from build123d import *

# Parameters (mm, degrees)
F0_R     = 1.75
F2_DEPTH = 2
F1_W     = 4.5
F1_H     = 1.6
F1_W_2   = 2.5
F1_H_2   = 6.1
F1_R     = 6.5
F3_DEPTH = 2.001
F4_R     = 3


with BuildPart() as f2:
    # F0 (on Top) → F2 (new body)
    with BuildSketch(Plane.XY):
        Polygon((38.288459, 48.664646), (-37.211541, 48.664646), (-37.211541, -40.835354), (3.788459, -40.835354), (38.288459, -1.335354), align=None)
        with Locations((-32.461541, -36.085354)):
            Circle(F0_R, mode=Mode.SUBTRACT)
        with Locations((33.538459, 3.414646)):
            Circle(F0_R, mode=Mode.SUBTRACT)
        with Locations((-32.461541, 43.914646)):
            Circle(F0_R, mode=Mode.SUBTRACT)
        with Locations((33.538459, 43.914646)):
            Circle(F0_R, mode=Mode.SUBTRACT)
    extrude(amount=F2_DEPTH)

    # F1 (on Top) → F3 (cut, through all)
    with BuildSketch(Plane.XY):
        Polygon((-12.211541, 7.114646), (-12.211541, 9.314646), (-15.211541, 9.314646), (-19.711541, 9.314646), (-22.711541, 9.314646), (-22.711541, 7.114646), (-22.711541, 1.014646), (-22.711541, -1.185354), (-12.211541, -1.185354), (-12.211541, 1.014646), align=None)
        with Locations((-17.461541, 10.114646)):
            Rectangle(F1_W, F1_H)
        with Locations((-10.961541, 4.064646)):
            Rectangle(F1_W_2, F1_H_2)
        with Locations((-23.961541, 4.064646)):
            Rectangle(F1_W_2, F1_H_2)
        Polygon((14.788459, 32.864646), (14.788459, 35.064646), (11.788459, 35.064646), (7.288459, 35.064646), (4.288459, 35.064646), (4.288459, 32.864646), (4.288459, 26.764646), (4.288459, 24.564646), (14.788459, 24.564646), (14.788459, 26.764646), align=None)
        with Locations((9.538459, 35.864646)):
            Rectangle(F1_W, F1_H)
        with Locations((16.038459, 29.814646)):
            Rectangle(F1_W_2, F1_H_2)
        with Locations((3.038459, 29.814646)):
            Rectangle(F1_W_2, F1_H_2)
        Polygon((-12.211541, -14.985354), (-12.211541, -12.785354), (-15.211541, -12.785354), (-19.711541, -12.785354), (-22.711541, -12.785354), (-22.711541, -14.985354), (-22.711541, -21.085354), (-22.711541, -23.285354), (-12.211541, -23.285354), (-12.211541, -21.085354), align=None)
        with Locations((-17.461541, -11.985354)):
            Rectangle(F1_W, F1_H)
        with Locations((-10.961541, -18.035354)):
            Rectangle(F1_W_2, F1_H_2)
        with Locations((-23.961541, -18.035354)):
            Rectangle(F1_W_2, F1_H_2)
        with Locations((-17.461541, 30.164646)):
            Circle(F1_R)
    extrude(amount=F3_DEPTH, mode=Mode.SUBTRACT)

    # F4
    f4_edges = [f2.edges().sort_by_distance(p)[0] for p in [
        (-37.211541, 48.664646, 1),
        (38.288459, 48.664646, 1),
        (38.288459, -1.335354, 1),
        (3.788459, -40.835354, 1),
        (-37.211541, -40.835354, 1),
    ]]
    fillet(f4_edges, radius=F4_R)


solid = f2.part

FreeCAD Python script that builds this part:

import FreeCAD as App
import Part
import Sketcher

V = App.Vector
Q = App.Units.Quantity


def edges_at(feature, points):
    """Names of the edges that pass closest to the given points."""
    edges = feature.Shape.Edges
    near = lambda p: min(range(len(edges)), key=lambda i: edges[i].distToShape(Part.Vertex(*p))[0])
    return sorted({f"Edge{near(p) + 1}" for p in points})


def add_polygon(sketch, points):
    """Adds a closed chain of lines whose ends are joined by coincident constraints."""
    first, n = sketch.GeometryCount, len(points)
    for a, b in zip(points, points[1:] + points[:1]):
        sketch.addGeometry(Part.LineSegment(App.Vector(*a, 0), App.Vector(*b, 0)), False)
    for i in range(n):
        sketch.addConstraint(Sketcher.Constraint("Coincident", first + i, 2, first + (i + 1) % n, 1))

doc = App.newDocument("Part")
body = doc.addObject("PartDesign::Body", "Body")

# Sketch on XY plane
sketch1 = body.newObject("Sketcher::SketchObject", "Sketch")
sketch1.AttachmentSupport = (doc.getObject("XY_Plane"), [""])
sketch1.MapMode = "FlatFace"
add_polygon(sketch1, [(38.3, 48.7), (-37.2, 48.7), (-37.2, -40.8), (3.8, -40.8), (38.3, -1.3)])  # lines 0-4
sketch1.addGeometry(Part.Circle(V(-32.5, -36.1, 0), V(0, 0, 1), 1.8), False)  # 5
sketch1.addGeometry(Part.Circle(V(33.5, 3.4, 0), V(0, 0, 1), 1.8), False)  # 6
sketch1.addGeometry(Part.Circle(V(-32.5, 43.9, 0), V(0, 0, 1), 1.8), False)  # 7
sketch1.addGeometry(Part.Circle(V(33.5, 43.9, 0), V(0, 0, 1), 1.8), False)  # 8
sketch1.addConstraint([
    Sketcher.Constraint("Horizontal", 0),
    Sketcher.Constraint("Vertical", 1),
    Sketcher.Constraint("Horizontal", 2),
    Sketcher.Constraint("Vertical", 4),
    Sketcher.Constraint("Equal", 5, 6),
    Sketcher.Constraint("Equal", 6, 7),
    Sketcher.Constraint("Equal", 7, 8),
    Sketcher.Constraint("Horizontal", 7, 3, 8, 3),
    Sketcher.Constraint("Vertical", 5, 3, 7, 3),
    Sketcher.Constraint("Vertical", 6, 3, 8, 3),
    Sketcher.Constraint("Diameter", 5, Q("3.5 mm")),
    Sketcher.Constraint("DistanceX", 2, 1, 2, 2, Q("41 mm")),
    Sketcher.Constraint("DistanceY", 4, 1, 4, 2, Q("50 mm")),
    Sketcher.Constraint("DistanceX", 0, 2, 0, 1, Q("75.5 mm")),
    Sketcher.Constraint("DistanceY", 1, 2, 1, 1, Q("89.5 mm")),
    Sketcher.Constraint("DistanceX", 5, 3, 6, 3, Q("66 mm")),
    Sketcher.Constraint("DistanceY", 5, 3, 7, 3, Q("80 mm")),
    Sketcher.Constraint("DistanceY", 5, 3, 6, 3, Q("39.5 mm")),
    Sketcher.Constraint("DistanceX", 0, 2, 7, 3, Q("4.75 mm")),
    Sketcher.Constraint("DistanceY", 7, 3, 0, 2, Q("4.75 mm")),
    Sketcher.Constraint("DistanceX", 5, 3, -1, 1, Q("32.461541 mm")),
    Sketcher.Constraint("DistanceY", 5, 3, -1, 1, Q("36.085354 mm")),
])
pad1 = body.newObject("PartDesign::Pad", "Pad")
pad1.Profile = sketch1
pad1.Length = 2

# Sketch on XY plane
sketch2 = body.newObject("Sketcher::SketchObject", "Sketch001")
sketch2.AttachmentSupport = (doc.getObject("XY_Plane"), [""])
sketch2.MapMode = "FlatFace"
add_polygon(sketch2, [(-12.2, 9.3), (-15.2, 9.3), (-15.2, 10.9), (-19.7, 10.9), (-19.7, 9.3), (-22.7, 9.3), (-22.7, 7.1), (-25.2, 7.1), (-25.2, 1), (-22.7, 1), (-22.7, -1.2), (-12.2, -1.2), (-12.2, 1), (-9.7, 1), (-9.7, 7.1), (-12.2, 7.1)])  # lines 0-15
add_polygon(sketch2, [(14.8, 35.1), (11.8, 35.1), (11.8, 36.7), (7.3, 36.7), (7.3, 35.1), (4.3, 35.1), (4.3, 32.9), (1.8, 32.9), (1.8, 26.8), (4.3, 26.8), (4.3, 24.6), (14.8, 24.6), (14.8, 26.8), (17.3, 26.8), (17.3, 32.9), (14.8, 32.9)])  # lines 16-31
add_polygon(sketch2, [(-12.2, -12.8), (-15.2, -12.8), (-15.2, -11.2), (-19.7, -11.2), (-19.7, -12.8), (-22.7, -12.8), (-22.7, -15), (-25.2, -15), (-25.2, -21.1), (-22.7, -21.1), (-22.7, -23.3), (-12.2, -23.3), (-12.2, -21.1), (-9.7, -21.1), (-9.7, -15), (-12.2, -15)])  # lines 32-47
sketch2.addGeometry(Part.Circle(V(-17.5, 30.2, 0), V(0, 0, 1), 6.5), False)  # 48
sketch2.addConstraint([
    Sketcher.Constraint("Horizontal", 0),
    Sketcher.Constraint("Vertical", 1),
    Sketcher.Constraint("Horizontal", 2),
    Sketcher.Constraint("Vertical", 3),
    Sketcher.Constraint("Horizontal", 4),
    Sketcher.Constraint("Vertical", 5),
    Sketcher.Constraint("Horizontal", 6),
    Sketcher.Constraint("Vertical", 7),
    Sketcher.Constraint("Horizontal", 8),
    Sketcher.Constraint("Vertical", 9),
    Sketcher.Constraint("Horizontal", 10),
    Sketcher.Constraint("Vertical", 11),
    Sketcher.Constraint("Horizontal", 12),
    Sketcher.Constraint("Vertical", 13),
    Sketcher.Constraint("Horizontal", 14),
    Sketcher.Constraint("Vertical", 15),
    Sketcher.Constraint("Horizontal", 16),
    Sketcher.Constraint("Vertical", 17),
    Sketcher.Constraint("Horizontal", 18),
    Sketcher.Constraint("Vertical", 19),
    Sketcher.Constraint("Horizontal", 20),
    Sketcher.Constraint("Vertical", 21),
    Sketcher.Constraint("Horizontal", 22),
    Sketcher.Constraint("Vertical", 23),
    Sketcher.Constraint("Horizontal", 24),
    Sketcher.Constraint("Vertical", 25),
    Sketcher.Constraint("Horizontal", 26),
    Sketcher.Constraint("Vertical", 27),
    Sketcher.Constraint("Horizontal", 28),
    Sketcher.Constraint("Vertical", 29),
    Sketcher.Constraint("Horizontal", 30),
    Sketcher.Constraint("Vertical", 31),
    Sketcher.Constraint("Horizontal", 32),
    Sketcher.Constraint("Vertical", 33),
    Sketcher.Constraint("Horizontal", 34),
    Sketcher.Constraint("Vertical", 35),
    Sketcher.Constraint("Horizontal", 36),
    Sketcher.Constraint("Vertical", 37),
    Sketcher.Constraint("Horizontal", 38),
    Sketcher.Constraint("Vertical", 39),
    Sketcher.Constraint("Horizontal", 40),
    Sketcher.Constraint("Vertical", 41),
    Sketcher.Constraint("Horizontal", 42),
    Sketcher.Constraint("Vertical", 43),
    Sketcher.Constraint("Horizontal", 44),
    Sketcher.Constraint("Vertical", 45),
    Sketcher.Constraint("Horizontal", 46),
    Sketcher.Constraint("Vertical", 47),
    Sketcher.Constraint("Horizontal", 0, 2, 3, 2),
    Sketcher.Constraint("Horizontal", 8, 2, 11, 2),
    Sketcher.Constraint("Horizontal", 6, 2, 13, 2),
    Sketcher.Constraint("Horizontal", 16, 2, 19, 2),
    Sketcher.Constraint("Horizontal", 24, 2, 27, 2),
    Sketcher.Constraint("Horizontal", 22, 2, 29, 2),
    Sketcher.Constraint("Horizontal", 32, 2, 35, 2),
    Sketcher.Constraint("Horizontal", 40, 2, 43, 2),
    Sketcher.Constraint("Horizontal", 38, 2, 45, 2),
    Sketcher.Constraint("Vertical", 5, 2, 8, 2),
    Sketcher.Constraint("Vertical", 11, 2, 14, 2),
    Sketcher.Constraint("Vertical", 21, 2, 24, 2),
    Sketcher.Constraint("Vertical", 27, 2, 30, 2),
    Sketcher.Constraint("Vertical", 1, 2, 32, 2),
    Sketcher.Constraint("Vertical", 3, 2, 34, 2),
    Sketcher.Constraint("Vertical", 9, 2, 36, 2),
    Sketcher.Constraint("Vertical", 7, 2, 38, 2),
    Sketcher.Constraint("Vertical", 37, 2, 40, 2),
    Sketcher.Constraint("Vertical", 15, 2, 42, 2),
    Sketcher.Constraint("Vertical", 13, 2, 44, 2),
    Sketcher.Constraint("Vertical", 43, 2, 46, 2),
    Sketcher.Constraint("Equal", 0, 4),
    Sketcher.Constraint("Equal", 8, 12),
    Sketcher.Constraint("Equal", 4, 16),
    Sketcher.Constraint("Equal", 2, 18),
    Sketcher.Constraint("Equal", 16, 20),
    Sketcher.Constraint("Equal", 14, 22),
    Sketcher.Constraint("Equal", 24, 28),
    Sketcher.Constraint("Equal", 5, 9),
    Sketcher.Constraint("Equal", 3, 17),
    Sketcher.Constraint("Equal", 15, 21),
    Sketcher.Constraint("Equal", 13, 23),
    Sketcher.Constraint("Equal", 21, 25),
    Sketcher.Constraint("Equal", 19, 33),
    Sketcher.Constraint("Equal", 31, 37),
    Sketcher.Constraint("Equal", 29, 39),
    Sketcher.Constraint("Equal", 37, 41),
    Sketcher.Constraint("Diameter", 48, Q("13 mm")),
    Sketcher.Constraint("DistanceX", 0, 2, 0, 1, Q("3 mm")),
    Sketcher.Constraint("DistanceX", 2, 2, 2, 1, Q("4.5 mm")),
    Sketcher.Constraint("DistanceX", 6, 2, 6, 1, Q("2.5 mm")),
    Sketcher.Constraint("DistanceY", 1, 1, 1, 2, Q("1.6 mm")),
    Sketcher.Constraint("DistanceY", 5, 2, 5, 1, Q("2.2 mm")),
    Sketcher.Constraint("DistanceY", 7, 2, 7, 1, Q("6.1 mm")),
    Sketcher.Constraint("DistanceX", 15, 2, 16, 2, Q("24 mm")),
    Sketcher.Constraint("DistanceY", 33, 2, 10, 2, Q("10 mm")),
    Sketcher.Constraint("DistanceY", 48, 3, 16, 2, Q("4.9 mm")),
    Sketcher.Constraint("DistanceX", 48, 3, 0, 2, Q("2.25 mm")),
    Sketcher.Constraint("DistanceY", 0, 2, 48, 3, Q("20.85 mm")),
    Sketcher.Constraint("DistanceX", 48, 3, -1, 1, Q("17.461541 mm")),
    Sketcher.Constraint("DistanceY", -1, 1, 48, 3, Q("30.164646 mm")),
])
pocket1 = body.newObject("PartDesign::Pocket", "Pocket")
pocket1.Profile = sketch2
pocket1.Type = "ThroughAll"
pocket1.Reversed = True
doc.recompute()

fillet = body.newObject("PartDesign::Fillet", "Fillet")
fillet.Base = (pocket1, edges_at(pocket1, [
    (-37.212, 48.665, 1),
    (38.288, 48.665, 1),
    (38.288, -1.335, 1),
    (3.788, -40.835, 1),
    (-37.212, -40.835, 1),
]))
fillet.Radius = 3

doc.recompute()
